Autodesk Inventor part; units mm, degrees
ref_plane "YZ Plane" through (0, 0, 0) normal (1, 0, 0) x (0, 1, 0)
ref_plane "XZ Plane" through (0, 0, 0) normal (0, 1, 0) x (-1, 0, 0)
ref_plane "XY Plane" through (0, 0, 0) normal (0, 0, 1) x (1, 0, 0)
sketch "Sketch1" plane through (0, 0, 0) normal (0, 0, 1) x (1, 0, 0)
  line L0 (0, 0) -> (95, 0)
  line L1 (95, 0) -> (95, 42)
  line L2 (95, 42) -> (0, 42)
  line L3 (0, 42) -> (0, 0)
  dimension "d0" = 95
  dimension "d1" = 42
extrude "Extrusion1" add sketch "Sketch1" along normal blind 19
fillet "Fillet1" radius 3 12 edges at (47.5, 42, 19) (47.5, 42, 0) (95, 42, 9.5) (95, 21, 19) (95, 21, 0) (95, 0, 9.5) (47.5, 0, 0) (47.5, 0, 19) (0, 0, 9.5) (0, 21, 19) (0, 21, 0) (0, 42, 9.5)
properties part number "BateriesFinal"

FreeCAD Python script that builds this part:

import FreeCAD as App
import Part
import Sketcher

doc = App.newDocument("Part")
params = doc.addObject("Spreadsheet::Sheet", "Params")
for row, (alias, value) in enumerate([
    ("sketch1_width", "95 mm"),
    ("sketch1_height", "42 mm"),
    ("pad1_length", "19 mm"),
    ("fillet_radius", "3 mm"),
], start=1):
    params.set(f"A{row}", alias)
    params.set(f"B{row}", "=" + value)
    params.setAlias(f"B{row}", alias)

body = doc.addObject("PartDesign::Body", "Body")

# Sketch on XY plane
sketch1 = doc.addObject("Sketcher::SketchObject", "Sketch")
body.addObject(sketch1)
sketch1.AttachmentSupport = (doc.XY_Plane, [""])
sketch1.MapMode = "FlatFace"
sketch1.addGeometry([
    Part.LineSegment(App.Vector(0, 42, 0), App.Vector(0, 0, 0)),
    Part.LineSegment(App.Vector(0, 0, 0), App.Vector(95, 0, 0)),
    Part.LineSegment(App.Vector(95, 0, 0), App.Vector(95, 42, 0)),
    Part.LineSegment(App.Vector(95, 42, 0), App.Vector(0, 42, 0)),
], False)
sketch1.addConstraint([
    Sketcher.Constraint("Coincident", 0, 2, 1, 1),
    Sketcher.Constraint("Coincident", 1, 2, 2, 1),
    Sketcher.Constraint("Coincident", 2, 2, 3, 1),
    Sketcher.Constraint("Coincident", 3, 2, 0, 1),
    Sketcher.Constraint("Vertical", 0),
    Sketcher.Constraint("Horizontal", 1),
    Sketcher.Constraint("Vertical", 2),
    Sketcher.Constraint("Horizontal", 3),
    Sketcher.Constraint("Coincident", 0, 2, -1, 1),
    Sketcher.Constraint("DistanceX", 1, 1, 1, 2, 95.0),
    Sketcher.Constraint("DistanceY", 0, 2, 0, 1, 42.0),
])
sketch1.setExpression("Constraints[9]", "Params.sketch1_width")
sketch1.setExpression("Constraints[10]", "Params.sketch1_height")
pad1 = doc.addObject("PartDesign::Pad", "Pad")
body.addObject(pad1)
pad1.Profile = sketch1
pad1.setExpression("Length", "Params.pad1_length")
doc.recompute()

fillet = doc.addObject("PartDesign::Fillet", "Fillet")
body.addObject(fillet)
fillet.Base = (pad1, ["Edge1"])
fillet.UseAllEdges = True
fillet.setExpression("Radius", "Params.fillet_radius")

doc.recompute()
